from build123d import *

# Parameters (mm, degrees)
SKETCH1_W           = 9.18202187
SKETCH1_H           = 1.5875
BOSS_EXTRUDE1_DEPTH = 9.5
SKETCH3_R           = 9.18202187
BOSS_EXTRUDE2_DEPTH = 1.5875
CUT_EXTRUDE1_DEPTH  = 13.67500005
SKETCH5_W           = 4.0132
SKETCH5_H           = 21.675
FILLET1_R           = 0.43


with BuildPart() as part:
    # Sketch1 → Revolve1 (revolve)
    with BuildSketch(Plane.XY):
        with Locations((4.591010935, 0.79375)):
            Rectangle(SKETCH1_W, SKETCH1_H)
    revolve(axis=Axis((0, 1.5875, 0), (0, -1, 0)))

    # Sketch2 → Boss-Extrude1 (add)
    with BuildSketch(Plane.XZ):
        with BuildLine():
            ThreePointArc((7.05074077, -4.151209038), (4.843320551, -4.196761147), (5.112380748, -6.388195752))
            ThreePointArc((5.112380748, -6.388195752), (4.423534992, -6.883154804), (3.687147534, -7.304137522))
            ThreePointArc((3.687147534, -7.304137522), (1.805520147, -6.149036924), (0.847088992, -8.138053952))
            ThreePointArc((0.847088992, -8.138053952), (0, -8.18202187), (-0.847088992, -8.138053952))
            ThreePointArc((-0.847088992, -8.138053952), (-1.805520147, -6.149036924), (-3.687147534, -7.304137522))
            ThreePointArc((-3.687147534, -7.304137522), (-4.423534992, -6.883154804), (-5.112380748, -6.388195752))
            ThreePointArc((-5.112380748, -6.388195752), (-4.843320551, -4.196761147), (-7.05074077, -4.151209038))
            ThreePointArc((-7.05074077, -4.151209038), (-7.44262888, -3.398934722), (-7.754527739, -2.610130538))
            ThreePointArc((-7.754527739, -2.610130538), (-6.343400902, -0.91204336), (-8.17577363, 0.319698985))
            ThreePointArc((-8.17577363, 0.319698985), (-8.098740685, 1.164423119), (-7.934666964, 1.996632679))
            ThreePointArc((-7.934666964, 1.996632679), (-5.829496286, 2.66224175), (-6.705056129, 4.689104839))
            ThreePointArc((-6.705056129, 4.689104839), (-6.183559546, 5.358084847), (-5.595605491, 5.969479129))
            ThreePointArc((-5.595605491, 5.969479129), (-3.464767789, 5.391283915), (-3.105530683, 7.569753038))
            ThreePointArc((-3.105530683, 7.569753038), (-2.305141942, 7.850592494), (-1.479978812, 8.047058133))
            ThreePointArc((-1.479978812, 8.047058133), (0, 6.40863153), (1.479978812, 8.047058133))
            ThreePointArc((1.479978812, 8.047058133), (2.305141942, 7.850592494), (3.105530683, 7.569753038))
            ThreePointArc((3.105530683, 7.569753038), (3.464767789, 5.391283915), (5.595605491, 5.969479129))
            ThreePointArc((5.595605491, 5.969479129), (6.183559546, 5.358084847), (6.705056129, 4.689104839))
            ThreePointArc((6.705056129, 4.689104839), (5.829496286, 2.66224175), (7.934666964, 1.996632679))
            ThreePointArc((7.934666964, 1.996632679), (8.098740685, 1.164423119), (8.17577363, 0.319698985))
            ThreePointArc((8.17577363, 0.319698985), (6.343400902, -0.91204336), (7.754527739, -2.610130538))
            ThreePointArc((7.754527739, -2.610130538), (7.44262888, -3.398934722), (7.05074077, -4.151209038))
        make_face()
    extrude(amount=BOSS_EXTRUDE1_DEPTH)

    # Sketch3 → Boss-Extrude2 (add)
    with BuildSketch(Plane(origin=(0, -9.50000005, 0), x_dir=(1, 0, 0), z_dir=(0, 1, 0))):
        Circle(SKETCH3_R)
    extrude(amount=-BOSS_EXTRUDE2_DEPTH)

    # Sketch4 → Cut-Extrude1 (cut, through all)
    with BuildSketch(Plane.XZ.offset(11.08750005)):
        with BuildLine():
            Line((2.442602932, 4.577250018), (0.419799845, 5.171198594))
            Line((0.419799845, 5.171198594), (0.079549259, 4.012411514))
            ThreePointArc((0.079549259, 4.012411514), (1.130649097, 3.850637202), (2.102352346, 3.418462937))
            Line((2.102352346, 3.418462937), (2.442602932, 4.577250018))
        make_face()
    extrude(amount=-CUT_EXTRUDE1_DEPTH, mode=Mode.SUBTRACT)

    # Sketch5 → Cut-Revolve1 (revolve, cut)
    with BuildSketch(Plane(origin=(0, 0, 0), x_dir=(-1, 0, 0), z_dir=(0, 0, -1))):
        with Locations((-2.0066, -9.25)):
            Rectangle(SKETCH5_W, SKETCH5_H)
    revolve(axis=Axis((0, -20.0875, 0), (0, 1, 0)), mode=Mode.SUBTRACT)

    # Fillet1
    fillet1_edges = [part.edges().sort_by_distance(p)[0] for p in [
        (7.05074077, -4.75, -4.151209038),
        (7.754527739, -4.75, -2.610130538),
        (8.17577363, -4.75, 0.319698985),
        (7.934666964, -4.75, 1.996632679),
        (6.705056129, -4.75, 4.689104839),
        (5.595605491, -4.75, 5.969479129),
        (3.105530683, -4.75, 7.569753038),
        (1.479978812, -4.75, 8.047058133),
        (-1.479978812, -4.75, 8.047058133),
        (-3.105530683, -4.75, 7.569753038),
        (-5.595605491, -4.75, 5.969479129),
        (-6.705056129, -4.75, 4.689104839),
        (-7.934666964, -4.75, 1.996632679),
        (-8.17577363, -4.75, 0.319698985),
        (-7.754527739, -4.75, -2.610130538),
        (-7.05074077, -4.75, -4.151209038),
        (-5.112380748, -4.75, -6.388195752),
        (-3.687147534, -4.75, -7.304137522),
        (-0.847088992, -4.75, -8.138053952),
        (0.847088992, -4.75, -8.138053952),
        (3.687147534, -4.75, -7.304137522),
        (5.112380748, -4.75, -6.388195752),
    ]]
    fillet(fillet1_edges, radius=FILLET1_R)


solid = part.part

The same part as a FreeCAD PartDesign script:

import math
import FreeCAD as App
import Part
import Sketcher
Q = App.Units.Quantity


def edges_at(feature, points):
    """Names of the edges that pass closest to the given points."""
    edges = feature.Shape.Edges
    near = lambda p: min(range(len(edges)), key=lambda i: edges[i].distToShape(Part.Vertex(*p))[0])
    return sorted({f"Edge{near(p) + 1}" for p in points})


def add_polygon(sketch, points):
    """Adds a closed chain of lines whose ends are joined by coincident constraints."""
    first, n = sketch.GeometryCount, len(points)
    for a, b in zip(points, points[1:] + points[:1]):
        sketch.addGeometry(Part.LineSegment(App.Vector(*a, 0), App.Vector(*b, 0)), False)
    for i in range(n):
        sketch.addConstraint(Sketcher.Constraint("Coincident", first + i, 2, first + (i + 1) % n, 1))

doc = App.newDocument("Part")
params = doc.addObject("Spreadsheet::Sheet", "Params")
for row, (alias, value) in enumerate([
    ("sketch1_height", "0.0625 in"),
    ("revolution_angle", "360 deg"),
    ("pad1_length", "9.5 mm"),
    ("pad2_length", "0.0625 in"),
    ("sketch4_radius", "0.158 in"),
    ("sketch4_length", "0.083 in"),
    ("sketch5_width", "0.158 in"),
    ("groove_angle", "360 deg"),
    ("fillet_radius", "0.43 mm"),
], start=1):
    params.set(f"A{row}", alias)
    params.set(f"B{row}", "=" + value)
    params.setAlias(f"B{row}", alias)

body = doc.addObject("PartDesign::Body", "Body")

# Sketch on XY plane
sketch1 = body.newObject("Sketcher::SketchObject", "Sketch")
sketch1.AttachmentSupport = (doc.getObject("XY_Plane"), [""])
sketch1.MapMode = "FlatFace"
add_polygon(sketch1, [(0, 1.5875), (0, 0), (9.182022, 0), (9.182022, 1.5875)])  # lines 0-3
sketch1.addConstraint(Sketcher.Constraint("Vertical", 0))
sketch1.addConstraint(Sketcher.Constraint("Horizontal", 1))
sketch1.addConstraint(Sketcher.Constraint("Vertical", 2))
sketch1.addConstraint(Sketcher.Constraint("Horizontal", 3))
sketch1.addConstraint(Sketcher.Constraint("Coincident", 0, 2, -1, 1))
sketch1.addConstraint(Sketcher.Constraint("DistanceY", 0, 2, 0, 1, Q("0.0625 in")))
sketch1.addConstraint(Sketcher.Constraint("DistanceX", 1, 1, 1, 2, Q("9.182022 mm")))
sketch1.setExpression("Constraints[9]", "Params.sketch1_height")
revolution = body.newObject("PartDesign::Revolution", "Revolution")
revolution.Profile = sketch1
revolution.ReferenceAxis = (sketch1, ["V_Axis"])
revolution.setExpression("Angle", "Params.revolution_angle")

# Sketch on XZ plane
sketch2 = body.newObject("Sketcher::SketchObject", "Sketch001")
sketch2.AttachmentSupport = (doc.getObject("XZ_Plane"), [""])
sketch2.MapMode = "FlatFace"
sketch2.addGeometry(Part.ArcOfCircle(Part.Circle(App.Vector(5.967604, -5.170958, 0), App.Vector(0, 0, 1), 1.48764), math.radians(43.273456), math.radians(234.908363)), False)
sketch2.addGeometry(Part.ArcOfCircle(Part.Circle(App.Vector(0, 0, 0), App.Vector(0, 0, 1), 8.182022), math.radians(-30.487965), math.radians(-18.602944)), False)
sketch2.addGeometry(Part.ArcOfCircle(Part.Circle(App.Vector(7.815899, -1.123757, 0), App.Vector(0, 0, 1), 1.48764), math.radians(76.000728), math.radians(267.635635)), False)
sketch2.addGeometry(Part.ArcOfCircle(Part.Circle(App.Vector(0, 0, 0), App.Vector(0, 0, 1), 8.182022), math.radians(2.239308), math.radians(14.124328)), False)
sketch2.addGeometry(Part.ArcOfCircle(Part.Circle(App.Vector(7.182702, 3.28023, 0), App.Vector(0, 0, 1), 1.48764), math.radians(108.728001), math.radians(300.362908)), False)
sketch2.addGeometry(Part.ArcOfCircle(Part.Circle(App.Vector(0, 0, 0), App.Vector(0, 0, 1), 8.182022), math.radians(34.966581), math.radians(46.851601)), False)
sketch2.addGeometry(Part.ArcOfCircle(Part.Circle(App.Vector(4.269047, 6.642767, 0), App.Vector(0, 0, 1), 1.48764), math.radians(141.455274), math.radians(333.090181)), False)
sketch2.addGeometry(Part.ArcOfCircle(Part.Circle(App.Vector(0, 0, 0), App.Vector(0, 0, 1), 8.182022), math.radians(67.693853), math.radians(79.578874)), False)
sketch2.addGeometry(Part.ArcOfCircle(Part.Circle(App.Vector(0, 7.896272, 0), App.Vector(0, 0, 1), 1.48764), math.radians(174.182547), math.radians(365.817453)), False)
sketch2.addGeometry(Part.ArcOfCircle(Part.Circle(App.Vector(0, 0, 0), App.Vector(0, 0, 1), 8.182022), math.radians(100.421126), math.radians(112.306147)), False)
sketch2.addGeometry(Part.ArcOfCircle(Part.Circle(App.Vector(-4.269047, 6.642767, 0), App.Vector(0, 0, 1), 1.48764), math.radians(-153.090181), math.radians(38.544726)), False)
sketch2.addGeometry(Part.ArcOfCircle(Part.Circle(App.Vector(0, 0, 0), App.Vector(0, 0, 1), 8.182022), math.radians(133.148399), math.radians(145.033419)), False)
sketch2.addGeometry(Part.ArcOfCircle(Part.Circle(App.Vector(-7.182702, 3.28023, 0), App.Vector(0, 0, 1), 1.48764), math.radians(-120.362908), math.radians(71.271999)), False)
sketch2.addGeometry(Part.ArcOfCircle(Part.Circle(App.Vector(0, 0, 0), App.Vector(0, 0, 1), 8.182022), math.radians(165.875672), math.radians(177.760692)), False)
sketch2.addGeometry(Part.ArcOfCircle(Part.Circle(App.Vector(-7.815899, -1.123757, 0), App.Vector(0, 0, 1), 1.48764), math.radians(-87.635635), math.radians(103.999272)), False)
sketch2.addGeometry(Part.ArcOfCircle(Part.Circle(App.Vector(0, 0, 0), App.Vector(0, 0, 1), 8.182022), math.radians(-161.397056), math.radians(-149.512035)), False)
sketch2.addGeometry(Part.ArcOfCircle(Part.Circle(App.Vector(-5.967604, -5.170958, 0), App.Vector(0, 0, 1), 1.48764), math.radians(-54.908363), math.radians(136.726544)), False)
sketch2.addGeometry(Part.ArcOfCircle(Part.Circle(App.Vector(0, 0, 0), App.Vector(0, 0, 1), 8.182022), math.radians(-128.669783), math.radians(-116.784762)), False)
sketch2.addGeometry(Part.ArcOfCircle(Part.Circle(App.Vector(-2.224637, -7.576417, 0), App.Vector(0, 0, 1), 1.48764), math.radians(-22.18109), math.radians(169.453817)), False)
sketch2.addGeometry(Part.ArcOfCircle(Part.Circle(App.Vector(0, 0, 0), App.Vector(0, 0, 1), 8.182022), math.radians(-95.94251), math.radians(-84.05749)), False)
sketch2.addGeometry(Part.ArcOfCircle(Part.Circle(App.Vector(2.224637, -7.576417, 0), App.Vector(0, 0, 1), 1.48764), math.radians(10.546183), math.radians(202.18109)), False)
sketch2.addGeometry(Part.ArcOfCircle(Part.Circle(App.Vector(0, 0, 0), App.Vector(0, 0, 1), 8.182022), math.radians(-63.215238), math.radians(-51.330217)), False)
sketch2.addConstraint(Sketcher.Constraint("Coincident", 0, 1, 1, 1))
sketch2.addConstraint(Sketcher.Constraint("Coincident", 1, 2, 2, 2))
sketch2.addConstraint(Sketcher.Constraint("Coincident", 2, 1, 3, 1))
sketch2.addConstraint(Sketcher.Constraint("Coincident", 3, 2, 4, 2))
sketch2.addConstraint(Sketcher.Constraint("Coincident", 4, 1, 5, 1))
sketch2.addConstraint(Sketcher.Constraint("Coincident", 5, 2, 6, 2))
sketch2.addConstraint(Sketcher.Constraint("Coincident", 6, 1, 7, 1))
sketch2.addConstraint(Sketcher.Constraint("Coincident", 7, 2, 8, 2))
sketch2.addConstraint(Sketcher.Constraint("Coincident", 8, 1, 9, 1))
sketch2.addConstraint(Sketcher.Constraint("Coincident", 9, 2, 10, 2))
sketch2.addConstraint(Sketcher.Constraint("Coincident", 10, 1, 11, 1))
sketch2.addConstraint(Sketcher.Constraint("Coincident", 11, 2, 12, 2))
sketch2.addConstraint(Sketcher.Constraint("Coincident", 12, 1, 13, 1))
sketch2.addConstraint(Sketcher.Constraint("Coincident", 13, 2, 14, 2))
sketch2.addConstraint(Sketcher.Constraint("Coincident", 14, 1, 15, 1))
sketch2.addConstraint(Sketcher.Constraint("Coincident", 15, 2, 16, 2))
sketch2.addConstraint(Sketcher.Constraint("Coincident", 16, 1, 17, 1))
sketch2.addConstraint(Sketcher.Constraint("Coincident", 17, 2, 18, 2))
sketch2.addConstraint(Sketcher.Constraint("Coincident", 18, 1, 19, 1))
sketch2.addConstraint(Sketcher.Constraint("Coincident", 19, 2, 20, 2))
sketch2.addConstraint(Sketcher.Constraint("Coincident", 20, 1, 21, 1))
sketch2.addConstraint(Sketcher.Constraint("Coincident", 21, 2, 0, 2))
sketch2.addConstraint(Sketcher.Constraint("Coincident", 1, 3, -1, 1))
sketch2.addConstraint(Sketcher.Constraint("Coincident", 3, 3, -1, 1))
sketch2.addConstraint(Sketcher.Constraint("Coincident", 5, 3, -1, 1))
sketch2.addConstraint(Sketcher.Constraint("Coincident", 7, 3, -1, 1))
sketch2.addConstraint(Sketcher.Constraint("Coincident", 9, 3, -1, 1))
sketch2.addConstraint(Sketcher.Constraint("Coincident", 11, 3, -1, 1))
sketch2.addConstraint(Sketcher.Constraint("Coincident", 13, 3, -1, 1))
sketch2.addConstraint(Sketcher.Constraint("Coincident", 15, 3, -1, 1))
sketch2.addConstraint(Sketcher.Constraint("Coincident", 17, 3, -1, 1))
sketch2.addConstraint(Sketcher.Constraint("Coincident", 19, 3, -1, 1))
sketch2.addConstraint(Sketcher.Constraint("Coincident", 21, 3, -1, 1))
sketch2.addConstraint(Sketcher.Constraint("Equal", 0, 2))
sketch2.addConstraint(Sketcher.Constraint("Equal", 1, 3))
sketch2.addConstraint(Sketcher.Constraint("Equal", 2, 4))
sketch2.addConstraint(Sketcher.Constraint("Equal", 3, 5))
sketch2.addConstraint(Sketcher.Constraint("Equal", 4, 6))
sketch2.addConstraint(Sketcher.Constraint("Equal", 5, 7))
sketch2.addConstraint(Sketcher.Constraint("Equal", 6, 8))
sketch2.addConstraint(Sketcher.Constraint("Equal", 7, 9))
sketch2.addConstraint(Sketcher.Constraint("Equal", 8, 10))
sketch2.addConstraint(Sketcher.Constraint("Equal", 9, 11))
sketch2.addConstraint(Sketcher.Constraint("Equal", 10, 12))
sketch2.addConstraint(Sketcher.Constraint("Equal", 11, 13))
sketch2.addConstraint(Sketcher.Constraint("Equal", 12, 14))
sketch2.addConstraint(Sketcher.Constraint("Equal", 13, 15))
sketch2.addConstraint(Sketcher.Constraint("Equal", 14, 16))
sketch2.addConstraint(Sketcher.Constraint("Equal", 15, 17))
sketch2.addConstraint(Sketcher.Constraint("Equal", 16, 18))
sketch2.addConstraint(Sketcher.Constraint("Equal", 17, 19))
sketch2.addConstraint(Sketcher.Constraint("Equal", 18, 20))
sketch2.addConstraint(Sketcher.Constraint("Equal", 19, 21))
sketch2.addConstraint(Sketcher.Constraint("Symmetric", 6, 3, 10, 3, -2))
sketch2.addConstraint(Sketcher.Constraint("Symmetric", 4, 3, 12, 3, -2))
sketch2.addConstraint(Sketcher.Constraint("Symmetric", 2, 3, 14, 3, -2))
sketch2.addConstraint(Sketcher.Constraint("Symmetric", 0, 3, 16, 3, -2))
sketch2.addConstraint(Sketcher.Constraint("Symmetric", 18, 3, 20, 3, -2))
sketch2.addConstraint(Sketcher.Constraint("PointOnObject", 8, 3, -2))
sketch2.addConstraint(Sketcher.Constraint("Radius", 0, Q("1.48764 mm")))
sketch2.addConstraint(Sketcher.Constraint("Radius", 1, Q("8.182022 mm")))
sketch2.addConstraint(Sketcher.Constraint("DistanceX", 18, 1, 19, 2, Q("0.0666999 in")))
sketch2.addConstraint(Sketcher.Constraint("DistanceX", -1, 1, 2, 3, Q("7.815899 mm")))
sketch2.addConstraint(Sketcher.Constraint("DistanceX", -1, 1, 4, 3, Q("7.182702 mm")))
sketch2.addConstraint(Sketcher.Constraint("DistanceY", -1, 1, 2, 1, Q("0.319699 mm")))
sketch2.addConstraint(Sketcher.Constraint("DistanceY", 0, 3, 2, 3, Q("4.047202 mm")))
sketch2.addConstraint(Sketcher.Constraint("DistanceY", -1, 1, 4, 3, Q("3.28023 mm")))
sketch2.addConstraint(Sketcher.Constraint("DistanceY", -1, 1, 8, 3, Q("7.896272 mm")))
sketch2.addConstraint(Sketcher.Constraint("DistanceX", -1, 1, 0, 1, Q("7.050741 mm")))
sketch2.addConstraint(Sketcher.Constraint("DistanceY", -1, 1, 5, 2, Q("5.969479 mm")))
sketch2.addConstraint(Sketcher.Constraint("DistanceX", -1, 1, 6, 1, Q("3.105531 mm")))
sketch2.addConstraint(Sketcher.Constraint("DistanceY", 18, 3, 16, 3, Q("2.405459 mm")))
pad1 = body.newObject("PartDesign::Pad", "Pad")
pad1.Profile = sketch2
pad1.setExpression("Length", "Params.pad1_length")

# Sketch on XZ plane
sketch3 = body.newObject("Sketcher::SketchObject", "Sketch002")
sketch3.AttachmentSupport = (doc.getObject("XZ_Plane"), [""])
sketch3.MapMode = "FlatFace"
sketch3.AttachmentOffset = App.Placement(App.Vector(0, 0, 9.5), App.Rotation())
sketch3.addGeometry(Part.Circle(App.Vector(0, 0, 0), App.Vector(0, 0, 1), 9.182022), False)
sketch3.addConstraint(Sketcher.Constraint("Coincident", 0, 3, -1, 1))
sketch3.addConstraint(Sketcher.Constraint("Diameter", 0, Q("18.364044 mm")))
pad2 = body.newObject("PartDesign::Pad", "Pad001")
pad2.Profile = sketch3
pad2.setExpression("Length", "Params.pad2_length")

# Sketch on XZ plane
sketch4 = body.newObject("Sketcher::SketchObject", "Sketch003")
sketch4.AttachmentSupport = (doc.getObject("XZ_Plane"), [""])
sketch4.MapMode = "FlatFace"
sketch4.AttachmentOffset = App.Placement(App.Vector(0, 0, 11.0875), App.Rotation())
sketch4.addGeometry(Part.LineSegment(App.Vector(2.442603, 4.57725, 0), App.Vector(0.4198, 5.171199, 0)), False)
sketch4.addGeometry(Part.LineSegment(App.Vector(0.4198, 5.171199, 0), App.Vector(0.079549, 4.012412, 0)), False)
sketch4.addGeometry(Part.ArcOfCircle(Part.Circle(App.Vector(0, 0, 0), App.Vector(0, 0, 1), 4.0132), math.radians(58.408513), math.radians(88.864214)), False)
sketch4.addGeometry(Part.LineSegment(App.Vector(2.102352, 3.418463, 0), App.Vector(2.442603, 4.57725, 0)), False)
sketch4.addConstraint(Sketcher.Constraint("Coincident", 0, 2, 1, 1))
sketch4.addConstraint(Sketcher.Constraint("Coincident", 1, 2, 2, 2))
sketch4.addConstraint(Sketcher.Constraint("Coincident", 2, 1, 3, 1))
sketch4.addConstraint(Sketcher.Constraint("Coincident", 3, 2, 0, 1))
sketch4.addConstraint(Sketcher.Constraint("Coincident", 2, 3, -1, 1))
sketch4.addConstraint(Sketcher.Constraint("Perpendicular", 0, 1))
sketch4.addConstraint(Sketcher.Constraint("Parallel", 1, 3))
sketch4.addConstraint(Sketcher.Constraint("Equal", 1, 3))
sketch4.addConstraint(Sketcher.Constraint("Radius", 2, Q("0.158 in")))
sketch4.addConstraint(Sketcher.Constraint("Distance", 0, Q("0.083 in")))
sketch4.addConstraint(Sketcher.Constraint("DistanceX", -1, 1, 0, 2, Q("0.4198 mm")))
sketch4.addConstraint(Sketcher.Constraint("DistanceY", -1, 1, 0, 2, Q("5.171199 mm")))
sketch4.setExpression("Constraints[8]", "Params.sketch4_radius")
sketch4.setExpression("Constraints[9]", "Params.sketch4_length")
pocket1 = body.newObject("PartDesign::Pocket", "Pocket")
pocket1.Profile = sketch4
pocket1.Type = "ThroughAll"

# Sketch on XY plane
sketch5 = body.newObject("Sketcher::SketchObject", "Sketch004")
sketch5.AttachmentSupport = (doc.getObject("XY_Plane"), [""])
sketch5.MapMode = "FlatFace"
add_polygon(sketch5, [(4.0132, 1.5875), (4.0132, -20.0875), (0, -20.0875), (0, 1.5875)])  # lines 0-3
sketch5.addConstraint(Sketcher.Constraint("Vertical", 0))
sketch5.addConstraint(Sketcher.Constraint("Horizontal", 1))
sketch5.addConstraint(Sketcher.Constraint("Vertical", 2))
sketch5.addConstraint(Sketcher.Constraint("Horizontal", 3))
sketch5.addConstraint(Sketcher.Constraint("PointOnObject", 1, 2, -2))
sketch5.addConstraint(Sketcher.Constraint("DistanceX", 1, 2, 1, 1, Q("0.158 in")))
sketch5.addConstraint(Sketcher.Constraint("DistanceY", -1, 1, 2, 2, Q("0.0625 in")))
sketch5.addConstraint(Sketcher.Constraint("DistanceY", 0, 2, 0, 1, Q("21.675 mm")))
sketch5.setExpression("Constraints[9]", "Params.sketch5_width")
groove = body.newObject("PartDesign::Groove", "Groove")
groove.Profile = sketch5
groove.ReferenceAxis = (sketch5, ["V_Axis"])
groove.setExpression("Angle", "Params.groove_angle")
doc.recompute()

fillet = body.newObject("PartDesign::Fillet", "Fillet")
fillet.Base = (groove, edges_at(groove, [
    (7.051, -4.75, -4.151),
    (7.755, -4.75, -2.61),
    (8.176, -4.75, 0.32),
    (7.935, -4.75, 1.997),
    (6.705, -4.75, 4.689),
    (5.596, -4.75, 5.969),
    (3.106, -4.75, 7.57),
    (1.48, -4.75, 8.047),
    (-1.48, -4.75, 8.047),
    (-3.106, -4.75, 7.57),
    (-5.596, -4.75, 5.969),
    (-6.705, -4.75, 4.689),
    (-7.935, -4.75, 1.997),
    (-8.176, -4.75, 0.32),
    (-7.755, -4.75, -2.61),
    (-7.051, -4.75, -4.151),
    (-5.112, -4.75, -6.388),
    (-3.687, -4.75, -7.304),
    (-0.847, -4.75, -8.138),
    (0.847, -4.75, -8.138),
    (3.687, -4.75, -7.304),
    (5.112, -4.75, -6.388),
]))
fillet.setExpression("Radius", "Params.fillet_radius")

doc.recompute()
